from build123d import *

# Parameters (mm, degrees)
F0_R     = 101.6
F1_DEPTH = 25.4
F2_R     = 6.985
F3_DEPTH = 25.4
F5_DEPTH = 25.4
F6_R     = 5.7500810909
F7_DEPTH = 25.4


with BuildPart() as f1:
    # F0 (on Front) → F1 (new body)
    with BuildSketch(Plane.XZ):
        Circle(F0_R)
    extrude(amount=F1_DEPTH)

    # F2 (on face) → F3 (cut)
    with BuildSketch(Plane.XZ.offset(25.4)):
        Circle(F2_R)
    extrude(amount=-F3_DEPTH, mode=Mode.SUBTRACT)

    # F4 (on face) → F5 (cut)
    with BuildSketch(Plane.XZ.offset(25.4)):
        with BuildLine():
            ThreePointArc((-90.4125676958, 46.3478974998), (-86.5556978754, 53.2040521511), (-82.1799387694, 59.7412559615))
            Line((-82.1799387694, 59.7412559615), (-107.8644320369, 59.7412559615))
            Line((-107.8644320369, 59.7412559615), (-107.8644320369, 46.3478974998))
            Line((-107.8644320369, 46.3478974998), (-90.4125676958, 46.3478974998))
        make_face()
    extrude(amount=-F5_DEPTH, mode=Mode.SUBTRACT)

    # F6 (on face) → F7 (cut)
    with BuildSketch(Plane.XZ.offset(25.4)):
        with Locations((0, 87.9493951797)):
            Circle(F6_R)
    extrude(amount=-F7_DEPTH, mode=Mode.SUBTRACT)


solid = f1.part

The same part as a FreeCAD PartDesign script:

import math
import FreeCAD as App
import Part
import Sketcher
Q = App.Units.Quantity

doc = App.newDocument("Part")
body = doc.addObject("PartDesign::Body", "Body")

# Sketch on XZ plane
sketch1 = body.newObject("Sketcher::SketchObject", "Sketch")
sketch1.AttachmentSupport = (doc.getObject("XZ_Plane"), [""])
sketch1.MapMode = "FlatFace"
sketch1.addGeometry(Part.Circle(App.Vector(0, 0, 0), App.Vector(0, 0, 1), 102), False)
sketch1.addConstraint([
    Sketcher.Constraint("Coincident", 0, 3, -1, 1),
    Sketcher.Constraint("Diameter", 0, Q("8 in")),
])
pad1 = body.newObject("PartDesign::Pad", "Pad")
pad1.Profile = sketch1
pad1.Length = Q("1 in")

# Sketch on XZ plane
sketch2 = body.newObject("Sketcher::SketchObject", "Sketch001")
sketch2.AttachmentSupport = (doc.getObject("XZ_Plane"), [""])
sketch2.MapMode = "FlatFace"
sketch2.AttachmentOffset = App.Placement(App.Vector(0, 0, 1 * 25.4), App.Rotation())
sketch2.addGeometry(Part.Circle(App.Vector(0, 0, 0), App.Vector(0, 0, 1), 7), False)
sketch2.addConstraint([
    Sketcher.Constraint("Coincident", 0, 3, -1, 1),
    Sketcher.Constraint("Diameter", 0, Q("0.55 in")),
])
pocket1 = body.newObject("PartDesign::Pocket", "Pocket")
pocket1.Profile = sketch2
pocket1.Length = Q("1 in")

# Sketch on XZ plane
sketch3 = body.newObject("Sketcher::SketchObject", "Sketch002")
sketch3.AttachmentSupport = (doc.getObject("XZ_Plane"), [""])
sketch3.MapMode = "FlatFace"
sketch3.AttachmentOffset = App.Placement(App.Vector(0, 0, 1 * 25.4), App.Rotation())
sketch3.addGeometry([
    Part.ArcOfCircle(Part.Circle(App.Vector(0, 0, 0), App.Vector(0, 0, 1), 102), math.radians(143.98), math.radians(152.86)),
    Part.LineSegment(App.Vector(-82, 60, 0), App.Vector(-108, 60, 0)),
    Part.LineSegment(App.Vector(-108, 60, 0), App.Vector(-108, 46, 0)),
    Part.LineSegment(App.Vector(-108, 46, 0), App.Vector(-90, 46, 0)),
], False)
sketch3.addConstraint([
    Sketcher.Constraint("Coincident", 0, 1, 1, 1),
    Sketcher.Constraint("Coincident", 1, 2, 2, 1),
    Sketcher.Constraint("Coincident", 2, 2, 3, 1),
    Sketcher.Constraint("Coincident", 3, 2, 0, 2),
    Sketcher.Constraint("Horizontal", 1),
    Sketcher.Constraint("Vertical", 2),
    Sketcher.Constraint("Horizontal", 3),
    Sketcher.Constraint("Coincident", 0, 3, -1, 1),
    Sketcher.Constraint("Radius", 0, Q("4 in")),
    Sketcher.Constraint("DistanceY", 2, 2, 2, 1, Q("13.393358 mm")),
    Sketcher.Constraint("DistanceX", 1, 2, 1, 1, Q("25.684493 mm")),
    Sketcher.Constraint("DistanceX", 3, 1, 3, 2, Q("17.451864 mm")),
])
pocket2 = body.newObject("PartDesign::Pocket", "Pocket001")
pocket2.Profile = sketch3
pocket2.Length = Q("1 in")

# Sketch on XZ plane
sketch4 = body.newObject("Sketcher::SketchObject", "Sketch003")
sketch4.AttachmentSupport = (doc.getObject("XZ_Plane"), [""])
sketch4.MapMode = "FlatFace"
sketch4.AttachmentOffset = App.Placement(App.Vector(0, 0, 1 * 25.4), App.Rotation())
sketch4.addGeometry(Part.Circle(App.Vector(0, 88, 0), App.Vector(0, 0, 1), 6), False)
sketch4.addConstraint([
    Sketcher.Constraint("PointOnObject", 0, 3, -2),
    Sketcher.Constraint("Diameter", 0, Q("11.500162 mm")),
    Sketcher.Constraint("DistanceY", -1, 1, 0, 3, Q("87.949395 mm")),
])
pocket3 = body.newObject("PartDesign::Pocket", "Pocket002")
pocket3.Profile = sketch4
pocket3.Length = Q("1 in")

doc.recompute()
